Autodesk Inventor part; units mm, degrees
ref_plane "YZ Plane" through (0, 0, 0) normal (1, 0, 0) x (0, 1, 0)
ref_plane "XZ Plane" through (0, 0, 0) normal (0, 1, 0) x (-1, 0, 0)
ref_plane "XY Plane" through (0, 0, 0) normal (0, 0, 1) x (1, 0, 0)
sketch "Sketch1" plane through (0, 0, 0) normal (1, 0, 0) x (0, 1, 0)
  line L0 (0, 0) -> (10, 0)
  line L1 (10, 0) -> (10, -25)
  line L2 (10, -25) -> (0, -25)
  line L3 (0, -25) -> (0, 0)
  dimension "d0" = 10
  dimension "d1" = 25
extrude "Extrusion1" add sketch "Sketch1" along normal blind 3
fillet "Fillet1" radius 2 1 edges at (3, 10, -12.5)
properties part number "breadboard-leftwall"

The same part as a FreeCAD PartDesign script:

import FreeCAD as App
import Part
import Sketcher

V = App.Vector
Q = App.Units.Quantity


def edges_at(feature, points):
    """Names of the edges that pass closest to the given points."""
    edges = feature.Shape.Edges
    near = lambda p: min(range(len(edges)), key=lambda i: edges[i].distToShape(Part.Vertex(*p))[0])
    return sorted({f"Edge{near(p) + 1}" for p in points})


def add_polygon(sketch, points):
    """Adds a closed chain of lines whose ends are joined by coincident constraints."""
    first, n = sketch.GeometryCount, len(points)
    for a, b in zip(points, points[1:] + points[:1]):
        sketch.addGeometry(Part.LineSegment(App.Vector(*a, 0), App.Vector(*b, 0)), False)
    for i in range(n):
        sketch.addConstraint(Sketcher.Constraint("Coincident", first + i, 2, first + (i + 1) % n, 1))

doc = App.newDocument("Part")
body = doc.addObject("PartDesign::Body", "Body")

sketch1 = body.newObject("Sketcher::SketchObject", "Sketch")
sketch1.AttachmentSupport = (doc.getObject("YZ_Plane"), [""])
sketch1.MapMode = "FlatFace"
add_polygon(sketch1, [(10, 0), (0, 0), (0, -25), (10, -25)])
sketch1.addConstraint(Sketcher.Constraint("Horizontal", 0))
sketch1.addConstraint(Sketcher.Constraint("Vertical", 1))
sketch1.addConstraint(Sketcher.Constraint("Horizontal", 2))
sketch1.addConstraint(Sketcher.Constraint("Vertical", 3))
sketch1.addConstraint(Sketcher.Constraint("Coincident", 0, 2, -1, 1))
sketch1.addConstraint(Sketcher.Constraint("DistanceX", 0, 2, 0, 1, Q("10 mm")))
sketch1.addConstraint(Sketcher.Constraint("DistanceY", 1, 2, 1, 1, Q("25 mm")))
pad1 = body.newObject("PartDesign::Pad", "Pad")
pad1.Profile = sketch1
pad1.Length = 3
doc.recompute()

fillet = body.newObject("PartDesign::Fillet", "Fillet")
fillet.Base = (pad1, edges_at(pad1, [(3, 10, -12.5)]))
fillet.Radius = 2

doc.recompute()
